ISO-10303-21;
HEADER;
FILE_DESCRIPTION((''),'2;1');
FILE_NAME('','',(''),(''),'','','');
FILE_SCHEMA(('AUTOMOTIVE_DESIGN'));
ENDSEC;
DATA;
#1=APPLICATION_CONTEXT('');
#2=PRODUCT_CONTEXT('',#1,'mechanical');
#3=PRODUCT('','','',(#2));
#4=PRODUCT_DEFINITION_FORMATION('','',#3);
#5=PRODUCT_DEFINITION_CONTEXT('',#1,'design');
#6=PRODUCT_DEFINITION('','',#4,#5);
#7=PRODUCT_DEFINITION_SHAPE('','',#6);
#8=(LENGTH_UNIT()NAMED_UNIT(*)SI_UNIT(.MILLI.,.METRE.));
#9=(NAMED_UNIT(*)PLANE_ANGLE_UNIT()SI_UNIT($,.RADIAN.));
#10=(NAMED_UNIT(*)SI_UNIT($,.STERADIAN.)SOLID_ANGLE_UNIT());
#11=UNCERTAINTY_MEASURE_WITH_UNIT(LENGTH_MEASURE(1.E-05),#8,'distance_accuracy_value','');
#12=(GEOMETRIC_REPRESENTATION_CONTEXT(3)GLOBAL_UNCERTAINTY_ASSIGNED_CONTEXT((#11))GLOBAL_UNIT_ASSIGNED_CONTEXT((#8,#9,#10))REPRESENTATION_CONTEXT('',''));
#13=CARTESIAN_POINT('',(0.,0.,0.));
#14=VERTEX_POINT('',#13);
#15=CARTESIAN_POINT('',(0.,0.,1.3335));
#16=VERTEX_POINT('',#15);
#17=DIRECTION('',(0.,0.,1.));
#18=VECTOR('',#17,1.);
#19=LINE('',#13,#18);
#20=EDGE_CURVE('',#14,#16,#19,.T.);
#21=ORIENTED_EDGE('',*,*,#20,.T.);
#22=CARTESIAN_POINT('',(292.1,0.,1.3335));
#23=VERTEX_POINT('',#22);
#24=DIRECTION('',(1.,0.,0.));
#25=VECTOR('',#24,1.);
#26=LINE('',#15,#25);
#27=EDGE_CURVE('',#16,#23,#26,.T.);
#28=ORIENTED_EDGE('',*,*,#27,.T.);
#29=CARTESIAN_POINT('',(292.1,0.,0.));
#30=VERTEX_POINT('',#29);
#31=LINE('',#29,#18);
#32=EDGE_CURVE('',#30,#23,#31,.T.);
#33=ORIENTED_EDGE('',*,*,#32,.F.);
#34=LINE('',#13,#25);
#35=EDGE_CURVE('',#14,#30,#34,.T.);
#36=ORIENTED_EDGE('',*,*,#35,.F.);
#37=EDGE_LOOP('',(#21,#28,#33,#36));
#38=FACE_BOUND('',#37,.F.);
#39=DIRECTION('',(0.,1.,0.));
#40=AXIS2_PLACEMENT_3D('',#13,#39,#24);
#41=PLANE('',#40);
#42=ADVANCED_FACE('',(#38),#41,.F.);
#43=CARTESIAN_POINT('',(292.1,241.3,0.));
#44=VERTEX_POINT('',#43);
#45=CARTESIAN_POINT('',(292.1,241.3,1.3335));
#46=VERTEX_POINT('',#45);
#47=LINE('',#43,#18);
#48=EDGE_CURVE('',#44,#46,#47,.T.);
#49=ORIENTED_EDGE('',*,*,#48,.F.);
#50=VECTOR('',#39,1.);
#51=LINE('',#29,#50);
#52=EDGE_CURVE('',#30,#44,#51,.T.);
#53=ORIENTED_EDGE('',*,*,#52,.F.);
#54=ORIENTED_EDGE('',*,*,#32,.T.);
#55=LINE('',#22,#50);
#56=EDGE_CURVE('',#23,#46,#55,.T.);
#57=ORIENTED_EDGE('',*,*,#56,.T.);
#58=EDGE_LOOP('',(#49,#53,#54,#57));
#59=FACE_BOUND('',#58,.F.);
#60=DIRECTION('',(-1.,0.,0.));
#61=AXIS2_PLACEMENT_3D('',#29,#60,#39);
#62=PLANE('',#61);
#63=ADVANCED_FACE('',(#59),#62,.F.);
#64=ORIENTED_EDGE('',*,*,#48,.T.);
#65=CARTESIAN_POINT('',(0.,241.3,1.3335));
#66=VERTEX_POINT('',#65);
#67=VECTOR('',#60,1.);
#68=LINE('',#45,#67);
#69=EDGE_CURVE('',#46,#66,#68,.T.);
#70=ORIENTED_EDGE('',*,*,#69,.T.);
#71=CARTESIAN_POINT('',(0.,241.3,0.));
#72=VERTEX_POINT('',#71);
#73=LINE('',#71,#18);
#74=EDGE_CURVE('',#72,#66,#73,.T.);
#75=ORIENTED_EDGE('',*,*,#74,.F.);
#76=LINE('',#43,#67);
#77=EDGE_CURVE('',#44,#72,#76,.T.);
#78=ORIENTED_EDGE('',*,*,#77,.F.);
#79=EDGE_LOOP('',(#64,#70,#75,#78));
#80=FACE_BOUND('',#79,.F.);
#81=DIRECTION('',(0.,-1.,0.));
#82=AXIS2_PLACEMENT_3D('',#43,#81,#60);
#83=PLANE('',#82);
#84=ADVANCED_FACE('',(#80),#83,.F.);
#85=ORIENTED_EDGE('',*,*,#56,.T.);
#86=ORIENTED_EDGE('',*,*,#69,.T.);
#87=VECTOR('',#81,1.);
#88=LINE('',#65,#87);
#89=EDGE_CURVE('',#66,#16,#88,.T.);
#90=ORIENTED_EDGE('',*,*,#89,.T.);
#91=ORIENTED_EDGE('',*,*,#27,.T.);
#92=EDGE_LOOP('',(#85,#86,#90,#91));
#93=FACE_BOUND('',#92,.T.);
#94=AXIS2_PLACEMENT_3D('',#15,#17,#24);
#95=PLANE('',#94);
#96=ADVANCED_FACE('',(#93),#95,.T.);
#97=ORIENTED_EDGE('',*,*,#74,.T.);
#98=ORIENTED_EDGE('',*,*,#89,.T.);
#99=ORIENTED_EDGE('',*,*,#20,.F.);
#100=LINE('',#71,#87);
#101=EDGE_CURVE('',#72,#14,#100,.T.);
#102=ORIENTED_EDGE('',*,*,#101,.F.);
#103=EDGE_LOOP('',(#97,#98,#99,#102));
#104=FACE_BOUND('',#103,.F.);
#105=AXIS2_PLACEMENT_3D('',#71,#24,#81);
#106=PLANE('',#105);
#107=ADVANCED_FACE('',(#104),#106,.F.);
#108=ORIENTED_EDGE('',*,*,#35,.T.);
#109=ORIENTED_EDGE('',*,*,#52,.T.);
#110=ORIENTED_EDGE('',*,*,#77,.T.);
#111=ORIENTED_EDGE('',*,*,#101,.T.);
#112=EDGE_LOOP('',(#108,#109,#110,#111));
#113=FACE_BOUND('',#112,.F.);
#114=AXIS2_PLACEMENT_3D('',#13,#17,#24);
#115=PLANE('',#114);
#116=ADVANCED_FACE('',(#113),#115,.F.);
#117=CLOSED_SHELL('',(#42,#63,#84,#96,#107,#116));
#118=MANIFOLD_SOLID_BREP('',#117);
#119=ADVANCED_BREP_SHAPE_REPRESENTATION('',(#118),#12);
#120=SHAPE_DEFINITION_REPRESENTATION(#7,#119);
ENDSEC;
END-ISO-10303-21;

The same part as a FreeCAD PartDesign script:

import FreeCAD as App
import Part
import Sketcher

V = App.Vector
Q = App.Units.Quantity

doc = App.newDocument("Part")
body = doc.addObject("PartDesign::Body", "Body")

sketch1 = doc.addObject("Sketcher::SketchObject", "Sketch")
body.addObject(sketch1)
sketch1.AttachmentSupport = (doc.XY_Plane, [""])
sketch1.MapMode = "FlatFace"
sketch1.addGeometry([
    Part.LineSegment(V(0, 241.3, 0), V(0, 0, 0)),
    Part.LineSegment(V(0, 0, 0), V(292.1, 0, 0)),
    Part.LineSegment(V(292.1, 0, 0), V(292.1, 241.3, 0)),
    Part.LineSegment(V(292.1, 241.3, 0), V(0, 241.3, 0)),
], False)
sketch1.addConstraint([
    Sketcher.Constraint("Coincident", 0, 2, 1, 1),
    Sketcher.Constraint("Coincident", 1, 2, 2, 1),
    Sketcher.Constraint("Coincident", 2, 2, 3, 1),
    Sketcher.Constraint("Coincident", 3, 2, 0, 1),
    Sketcher.Constraint("Vertical", 0),
    Sketcher.Constraint("Horizontal", 1),
    Sketcher.Constraint("Vertical", 2),
    Sketcher.Constraint("Horizontal", 3),
    Sketcher.Constraint("Coincident", 0, 2, -1, 1),
    Sketcher.Constraint("DistanceX", 1, 1, 1, 2, Q("11.5 in")),
    Sketcher.Constraint("DistanceY", 0, 2, 0, 1, Q("9.5 in")),
])
pad1 = doc.addObject("PartDesign::Pad", "Pad")
body.addObject(pad1)
pad1.Profile = sketch1
pad1.Length = Q("0.0525 in")

doc.recompute()
